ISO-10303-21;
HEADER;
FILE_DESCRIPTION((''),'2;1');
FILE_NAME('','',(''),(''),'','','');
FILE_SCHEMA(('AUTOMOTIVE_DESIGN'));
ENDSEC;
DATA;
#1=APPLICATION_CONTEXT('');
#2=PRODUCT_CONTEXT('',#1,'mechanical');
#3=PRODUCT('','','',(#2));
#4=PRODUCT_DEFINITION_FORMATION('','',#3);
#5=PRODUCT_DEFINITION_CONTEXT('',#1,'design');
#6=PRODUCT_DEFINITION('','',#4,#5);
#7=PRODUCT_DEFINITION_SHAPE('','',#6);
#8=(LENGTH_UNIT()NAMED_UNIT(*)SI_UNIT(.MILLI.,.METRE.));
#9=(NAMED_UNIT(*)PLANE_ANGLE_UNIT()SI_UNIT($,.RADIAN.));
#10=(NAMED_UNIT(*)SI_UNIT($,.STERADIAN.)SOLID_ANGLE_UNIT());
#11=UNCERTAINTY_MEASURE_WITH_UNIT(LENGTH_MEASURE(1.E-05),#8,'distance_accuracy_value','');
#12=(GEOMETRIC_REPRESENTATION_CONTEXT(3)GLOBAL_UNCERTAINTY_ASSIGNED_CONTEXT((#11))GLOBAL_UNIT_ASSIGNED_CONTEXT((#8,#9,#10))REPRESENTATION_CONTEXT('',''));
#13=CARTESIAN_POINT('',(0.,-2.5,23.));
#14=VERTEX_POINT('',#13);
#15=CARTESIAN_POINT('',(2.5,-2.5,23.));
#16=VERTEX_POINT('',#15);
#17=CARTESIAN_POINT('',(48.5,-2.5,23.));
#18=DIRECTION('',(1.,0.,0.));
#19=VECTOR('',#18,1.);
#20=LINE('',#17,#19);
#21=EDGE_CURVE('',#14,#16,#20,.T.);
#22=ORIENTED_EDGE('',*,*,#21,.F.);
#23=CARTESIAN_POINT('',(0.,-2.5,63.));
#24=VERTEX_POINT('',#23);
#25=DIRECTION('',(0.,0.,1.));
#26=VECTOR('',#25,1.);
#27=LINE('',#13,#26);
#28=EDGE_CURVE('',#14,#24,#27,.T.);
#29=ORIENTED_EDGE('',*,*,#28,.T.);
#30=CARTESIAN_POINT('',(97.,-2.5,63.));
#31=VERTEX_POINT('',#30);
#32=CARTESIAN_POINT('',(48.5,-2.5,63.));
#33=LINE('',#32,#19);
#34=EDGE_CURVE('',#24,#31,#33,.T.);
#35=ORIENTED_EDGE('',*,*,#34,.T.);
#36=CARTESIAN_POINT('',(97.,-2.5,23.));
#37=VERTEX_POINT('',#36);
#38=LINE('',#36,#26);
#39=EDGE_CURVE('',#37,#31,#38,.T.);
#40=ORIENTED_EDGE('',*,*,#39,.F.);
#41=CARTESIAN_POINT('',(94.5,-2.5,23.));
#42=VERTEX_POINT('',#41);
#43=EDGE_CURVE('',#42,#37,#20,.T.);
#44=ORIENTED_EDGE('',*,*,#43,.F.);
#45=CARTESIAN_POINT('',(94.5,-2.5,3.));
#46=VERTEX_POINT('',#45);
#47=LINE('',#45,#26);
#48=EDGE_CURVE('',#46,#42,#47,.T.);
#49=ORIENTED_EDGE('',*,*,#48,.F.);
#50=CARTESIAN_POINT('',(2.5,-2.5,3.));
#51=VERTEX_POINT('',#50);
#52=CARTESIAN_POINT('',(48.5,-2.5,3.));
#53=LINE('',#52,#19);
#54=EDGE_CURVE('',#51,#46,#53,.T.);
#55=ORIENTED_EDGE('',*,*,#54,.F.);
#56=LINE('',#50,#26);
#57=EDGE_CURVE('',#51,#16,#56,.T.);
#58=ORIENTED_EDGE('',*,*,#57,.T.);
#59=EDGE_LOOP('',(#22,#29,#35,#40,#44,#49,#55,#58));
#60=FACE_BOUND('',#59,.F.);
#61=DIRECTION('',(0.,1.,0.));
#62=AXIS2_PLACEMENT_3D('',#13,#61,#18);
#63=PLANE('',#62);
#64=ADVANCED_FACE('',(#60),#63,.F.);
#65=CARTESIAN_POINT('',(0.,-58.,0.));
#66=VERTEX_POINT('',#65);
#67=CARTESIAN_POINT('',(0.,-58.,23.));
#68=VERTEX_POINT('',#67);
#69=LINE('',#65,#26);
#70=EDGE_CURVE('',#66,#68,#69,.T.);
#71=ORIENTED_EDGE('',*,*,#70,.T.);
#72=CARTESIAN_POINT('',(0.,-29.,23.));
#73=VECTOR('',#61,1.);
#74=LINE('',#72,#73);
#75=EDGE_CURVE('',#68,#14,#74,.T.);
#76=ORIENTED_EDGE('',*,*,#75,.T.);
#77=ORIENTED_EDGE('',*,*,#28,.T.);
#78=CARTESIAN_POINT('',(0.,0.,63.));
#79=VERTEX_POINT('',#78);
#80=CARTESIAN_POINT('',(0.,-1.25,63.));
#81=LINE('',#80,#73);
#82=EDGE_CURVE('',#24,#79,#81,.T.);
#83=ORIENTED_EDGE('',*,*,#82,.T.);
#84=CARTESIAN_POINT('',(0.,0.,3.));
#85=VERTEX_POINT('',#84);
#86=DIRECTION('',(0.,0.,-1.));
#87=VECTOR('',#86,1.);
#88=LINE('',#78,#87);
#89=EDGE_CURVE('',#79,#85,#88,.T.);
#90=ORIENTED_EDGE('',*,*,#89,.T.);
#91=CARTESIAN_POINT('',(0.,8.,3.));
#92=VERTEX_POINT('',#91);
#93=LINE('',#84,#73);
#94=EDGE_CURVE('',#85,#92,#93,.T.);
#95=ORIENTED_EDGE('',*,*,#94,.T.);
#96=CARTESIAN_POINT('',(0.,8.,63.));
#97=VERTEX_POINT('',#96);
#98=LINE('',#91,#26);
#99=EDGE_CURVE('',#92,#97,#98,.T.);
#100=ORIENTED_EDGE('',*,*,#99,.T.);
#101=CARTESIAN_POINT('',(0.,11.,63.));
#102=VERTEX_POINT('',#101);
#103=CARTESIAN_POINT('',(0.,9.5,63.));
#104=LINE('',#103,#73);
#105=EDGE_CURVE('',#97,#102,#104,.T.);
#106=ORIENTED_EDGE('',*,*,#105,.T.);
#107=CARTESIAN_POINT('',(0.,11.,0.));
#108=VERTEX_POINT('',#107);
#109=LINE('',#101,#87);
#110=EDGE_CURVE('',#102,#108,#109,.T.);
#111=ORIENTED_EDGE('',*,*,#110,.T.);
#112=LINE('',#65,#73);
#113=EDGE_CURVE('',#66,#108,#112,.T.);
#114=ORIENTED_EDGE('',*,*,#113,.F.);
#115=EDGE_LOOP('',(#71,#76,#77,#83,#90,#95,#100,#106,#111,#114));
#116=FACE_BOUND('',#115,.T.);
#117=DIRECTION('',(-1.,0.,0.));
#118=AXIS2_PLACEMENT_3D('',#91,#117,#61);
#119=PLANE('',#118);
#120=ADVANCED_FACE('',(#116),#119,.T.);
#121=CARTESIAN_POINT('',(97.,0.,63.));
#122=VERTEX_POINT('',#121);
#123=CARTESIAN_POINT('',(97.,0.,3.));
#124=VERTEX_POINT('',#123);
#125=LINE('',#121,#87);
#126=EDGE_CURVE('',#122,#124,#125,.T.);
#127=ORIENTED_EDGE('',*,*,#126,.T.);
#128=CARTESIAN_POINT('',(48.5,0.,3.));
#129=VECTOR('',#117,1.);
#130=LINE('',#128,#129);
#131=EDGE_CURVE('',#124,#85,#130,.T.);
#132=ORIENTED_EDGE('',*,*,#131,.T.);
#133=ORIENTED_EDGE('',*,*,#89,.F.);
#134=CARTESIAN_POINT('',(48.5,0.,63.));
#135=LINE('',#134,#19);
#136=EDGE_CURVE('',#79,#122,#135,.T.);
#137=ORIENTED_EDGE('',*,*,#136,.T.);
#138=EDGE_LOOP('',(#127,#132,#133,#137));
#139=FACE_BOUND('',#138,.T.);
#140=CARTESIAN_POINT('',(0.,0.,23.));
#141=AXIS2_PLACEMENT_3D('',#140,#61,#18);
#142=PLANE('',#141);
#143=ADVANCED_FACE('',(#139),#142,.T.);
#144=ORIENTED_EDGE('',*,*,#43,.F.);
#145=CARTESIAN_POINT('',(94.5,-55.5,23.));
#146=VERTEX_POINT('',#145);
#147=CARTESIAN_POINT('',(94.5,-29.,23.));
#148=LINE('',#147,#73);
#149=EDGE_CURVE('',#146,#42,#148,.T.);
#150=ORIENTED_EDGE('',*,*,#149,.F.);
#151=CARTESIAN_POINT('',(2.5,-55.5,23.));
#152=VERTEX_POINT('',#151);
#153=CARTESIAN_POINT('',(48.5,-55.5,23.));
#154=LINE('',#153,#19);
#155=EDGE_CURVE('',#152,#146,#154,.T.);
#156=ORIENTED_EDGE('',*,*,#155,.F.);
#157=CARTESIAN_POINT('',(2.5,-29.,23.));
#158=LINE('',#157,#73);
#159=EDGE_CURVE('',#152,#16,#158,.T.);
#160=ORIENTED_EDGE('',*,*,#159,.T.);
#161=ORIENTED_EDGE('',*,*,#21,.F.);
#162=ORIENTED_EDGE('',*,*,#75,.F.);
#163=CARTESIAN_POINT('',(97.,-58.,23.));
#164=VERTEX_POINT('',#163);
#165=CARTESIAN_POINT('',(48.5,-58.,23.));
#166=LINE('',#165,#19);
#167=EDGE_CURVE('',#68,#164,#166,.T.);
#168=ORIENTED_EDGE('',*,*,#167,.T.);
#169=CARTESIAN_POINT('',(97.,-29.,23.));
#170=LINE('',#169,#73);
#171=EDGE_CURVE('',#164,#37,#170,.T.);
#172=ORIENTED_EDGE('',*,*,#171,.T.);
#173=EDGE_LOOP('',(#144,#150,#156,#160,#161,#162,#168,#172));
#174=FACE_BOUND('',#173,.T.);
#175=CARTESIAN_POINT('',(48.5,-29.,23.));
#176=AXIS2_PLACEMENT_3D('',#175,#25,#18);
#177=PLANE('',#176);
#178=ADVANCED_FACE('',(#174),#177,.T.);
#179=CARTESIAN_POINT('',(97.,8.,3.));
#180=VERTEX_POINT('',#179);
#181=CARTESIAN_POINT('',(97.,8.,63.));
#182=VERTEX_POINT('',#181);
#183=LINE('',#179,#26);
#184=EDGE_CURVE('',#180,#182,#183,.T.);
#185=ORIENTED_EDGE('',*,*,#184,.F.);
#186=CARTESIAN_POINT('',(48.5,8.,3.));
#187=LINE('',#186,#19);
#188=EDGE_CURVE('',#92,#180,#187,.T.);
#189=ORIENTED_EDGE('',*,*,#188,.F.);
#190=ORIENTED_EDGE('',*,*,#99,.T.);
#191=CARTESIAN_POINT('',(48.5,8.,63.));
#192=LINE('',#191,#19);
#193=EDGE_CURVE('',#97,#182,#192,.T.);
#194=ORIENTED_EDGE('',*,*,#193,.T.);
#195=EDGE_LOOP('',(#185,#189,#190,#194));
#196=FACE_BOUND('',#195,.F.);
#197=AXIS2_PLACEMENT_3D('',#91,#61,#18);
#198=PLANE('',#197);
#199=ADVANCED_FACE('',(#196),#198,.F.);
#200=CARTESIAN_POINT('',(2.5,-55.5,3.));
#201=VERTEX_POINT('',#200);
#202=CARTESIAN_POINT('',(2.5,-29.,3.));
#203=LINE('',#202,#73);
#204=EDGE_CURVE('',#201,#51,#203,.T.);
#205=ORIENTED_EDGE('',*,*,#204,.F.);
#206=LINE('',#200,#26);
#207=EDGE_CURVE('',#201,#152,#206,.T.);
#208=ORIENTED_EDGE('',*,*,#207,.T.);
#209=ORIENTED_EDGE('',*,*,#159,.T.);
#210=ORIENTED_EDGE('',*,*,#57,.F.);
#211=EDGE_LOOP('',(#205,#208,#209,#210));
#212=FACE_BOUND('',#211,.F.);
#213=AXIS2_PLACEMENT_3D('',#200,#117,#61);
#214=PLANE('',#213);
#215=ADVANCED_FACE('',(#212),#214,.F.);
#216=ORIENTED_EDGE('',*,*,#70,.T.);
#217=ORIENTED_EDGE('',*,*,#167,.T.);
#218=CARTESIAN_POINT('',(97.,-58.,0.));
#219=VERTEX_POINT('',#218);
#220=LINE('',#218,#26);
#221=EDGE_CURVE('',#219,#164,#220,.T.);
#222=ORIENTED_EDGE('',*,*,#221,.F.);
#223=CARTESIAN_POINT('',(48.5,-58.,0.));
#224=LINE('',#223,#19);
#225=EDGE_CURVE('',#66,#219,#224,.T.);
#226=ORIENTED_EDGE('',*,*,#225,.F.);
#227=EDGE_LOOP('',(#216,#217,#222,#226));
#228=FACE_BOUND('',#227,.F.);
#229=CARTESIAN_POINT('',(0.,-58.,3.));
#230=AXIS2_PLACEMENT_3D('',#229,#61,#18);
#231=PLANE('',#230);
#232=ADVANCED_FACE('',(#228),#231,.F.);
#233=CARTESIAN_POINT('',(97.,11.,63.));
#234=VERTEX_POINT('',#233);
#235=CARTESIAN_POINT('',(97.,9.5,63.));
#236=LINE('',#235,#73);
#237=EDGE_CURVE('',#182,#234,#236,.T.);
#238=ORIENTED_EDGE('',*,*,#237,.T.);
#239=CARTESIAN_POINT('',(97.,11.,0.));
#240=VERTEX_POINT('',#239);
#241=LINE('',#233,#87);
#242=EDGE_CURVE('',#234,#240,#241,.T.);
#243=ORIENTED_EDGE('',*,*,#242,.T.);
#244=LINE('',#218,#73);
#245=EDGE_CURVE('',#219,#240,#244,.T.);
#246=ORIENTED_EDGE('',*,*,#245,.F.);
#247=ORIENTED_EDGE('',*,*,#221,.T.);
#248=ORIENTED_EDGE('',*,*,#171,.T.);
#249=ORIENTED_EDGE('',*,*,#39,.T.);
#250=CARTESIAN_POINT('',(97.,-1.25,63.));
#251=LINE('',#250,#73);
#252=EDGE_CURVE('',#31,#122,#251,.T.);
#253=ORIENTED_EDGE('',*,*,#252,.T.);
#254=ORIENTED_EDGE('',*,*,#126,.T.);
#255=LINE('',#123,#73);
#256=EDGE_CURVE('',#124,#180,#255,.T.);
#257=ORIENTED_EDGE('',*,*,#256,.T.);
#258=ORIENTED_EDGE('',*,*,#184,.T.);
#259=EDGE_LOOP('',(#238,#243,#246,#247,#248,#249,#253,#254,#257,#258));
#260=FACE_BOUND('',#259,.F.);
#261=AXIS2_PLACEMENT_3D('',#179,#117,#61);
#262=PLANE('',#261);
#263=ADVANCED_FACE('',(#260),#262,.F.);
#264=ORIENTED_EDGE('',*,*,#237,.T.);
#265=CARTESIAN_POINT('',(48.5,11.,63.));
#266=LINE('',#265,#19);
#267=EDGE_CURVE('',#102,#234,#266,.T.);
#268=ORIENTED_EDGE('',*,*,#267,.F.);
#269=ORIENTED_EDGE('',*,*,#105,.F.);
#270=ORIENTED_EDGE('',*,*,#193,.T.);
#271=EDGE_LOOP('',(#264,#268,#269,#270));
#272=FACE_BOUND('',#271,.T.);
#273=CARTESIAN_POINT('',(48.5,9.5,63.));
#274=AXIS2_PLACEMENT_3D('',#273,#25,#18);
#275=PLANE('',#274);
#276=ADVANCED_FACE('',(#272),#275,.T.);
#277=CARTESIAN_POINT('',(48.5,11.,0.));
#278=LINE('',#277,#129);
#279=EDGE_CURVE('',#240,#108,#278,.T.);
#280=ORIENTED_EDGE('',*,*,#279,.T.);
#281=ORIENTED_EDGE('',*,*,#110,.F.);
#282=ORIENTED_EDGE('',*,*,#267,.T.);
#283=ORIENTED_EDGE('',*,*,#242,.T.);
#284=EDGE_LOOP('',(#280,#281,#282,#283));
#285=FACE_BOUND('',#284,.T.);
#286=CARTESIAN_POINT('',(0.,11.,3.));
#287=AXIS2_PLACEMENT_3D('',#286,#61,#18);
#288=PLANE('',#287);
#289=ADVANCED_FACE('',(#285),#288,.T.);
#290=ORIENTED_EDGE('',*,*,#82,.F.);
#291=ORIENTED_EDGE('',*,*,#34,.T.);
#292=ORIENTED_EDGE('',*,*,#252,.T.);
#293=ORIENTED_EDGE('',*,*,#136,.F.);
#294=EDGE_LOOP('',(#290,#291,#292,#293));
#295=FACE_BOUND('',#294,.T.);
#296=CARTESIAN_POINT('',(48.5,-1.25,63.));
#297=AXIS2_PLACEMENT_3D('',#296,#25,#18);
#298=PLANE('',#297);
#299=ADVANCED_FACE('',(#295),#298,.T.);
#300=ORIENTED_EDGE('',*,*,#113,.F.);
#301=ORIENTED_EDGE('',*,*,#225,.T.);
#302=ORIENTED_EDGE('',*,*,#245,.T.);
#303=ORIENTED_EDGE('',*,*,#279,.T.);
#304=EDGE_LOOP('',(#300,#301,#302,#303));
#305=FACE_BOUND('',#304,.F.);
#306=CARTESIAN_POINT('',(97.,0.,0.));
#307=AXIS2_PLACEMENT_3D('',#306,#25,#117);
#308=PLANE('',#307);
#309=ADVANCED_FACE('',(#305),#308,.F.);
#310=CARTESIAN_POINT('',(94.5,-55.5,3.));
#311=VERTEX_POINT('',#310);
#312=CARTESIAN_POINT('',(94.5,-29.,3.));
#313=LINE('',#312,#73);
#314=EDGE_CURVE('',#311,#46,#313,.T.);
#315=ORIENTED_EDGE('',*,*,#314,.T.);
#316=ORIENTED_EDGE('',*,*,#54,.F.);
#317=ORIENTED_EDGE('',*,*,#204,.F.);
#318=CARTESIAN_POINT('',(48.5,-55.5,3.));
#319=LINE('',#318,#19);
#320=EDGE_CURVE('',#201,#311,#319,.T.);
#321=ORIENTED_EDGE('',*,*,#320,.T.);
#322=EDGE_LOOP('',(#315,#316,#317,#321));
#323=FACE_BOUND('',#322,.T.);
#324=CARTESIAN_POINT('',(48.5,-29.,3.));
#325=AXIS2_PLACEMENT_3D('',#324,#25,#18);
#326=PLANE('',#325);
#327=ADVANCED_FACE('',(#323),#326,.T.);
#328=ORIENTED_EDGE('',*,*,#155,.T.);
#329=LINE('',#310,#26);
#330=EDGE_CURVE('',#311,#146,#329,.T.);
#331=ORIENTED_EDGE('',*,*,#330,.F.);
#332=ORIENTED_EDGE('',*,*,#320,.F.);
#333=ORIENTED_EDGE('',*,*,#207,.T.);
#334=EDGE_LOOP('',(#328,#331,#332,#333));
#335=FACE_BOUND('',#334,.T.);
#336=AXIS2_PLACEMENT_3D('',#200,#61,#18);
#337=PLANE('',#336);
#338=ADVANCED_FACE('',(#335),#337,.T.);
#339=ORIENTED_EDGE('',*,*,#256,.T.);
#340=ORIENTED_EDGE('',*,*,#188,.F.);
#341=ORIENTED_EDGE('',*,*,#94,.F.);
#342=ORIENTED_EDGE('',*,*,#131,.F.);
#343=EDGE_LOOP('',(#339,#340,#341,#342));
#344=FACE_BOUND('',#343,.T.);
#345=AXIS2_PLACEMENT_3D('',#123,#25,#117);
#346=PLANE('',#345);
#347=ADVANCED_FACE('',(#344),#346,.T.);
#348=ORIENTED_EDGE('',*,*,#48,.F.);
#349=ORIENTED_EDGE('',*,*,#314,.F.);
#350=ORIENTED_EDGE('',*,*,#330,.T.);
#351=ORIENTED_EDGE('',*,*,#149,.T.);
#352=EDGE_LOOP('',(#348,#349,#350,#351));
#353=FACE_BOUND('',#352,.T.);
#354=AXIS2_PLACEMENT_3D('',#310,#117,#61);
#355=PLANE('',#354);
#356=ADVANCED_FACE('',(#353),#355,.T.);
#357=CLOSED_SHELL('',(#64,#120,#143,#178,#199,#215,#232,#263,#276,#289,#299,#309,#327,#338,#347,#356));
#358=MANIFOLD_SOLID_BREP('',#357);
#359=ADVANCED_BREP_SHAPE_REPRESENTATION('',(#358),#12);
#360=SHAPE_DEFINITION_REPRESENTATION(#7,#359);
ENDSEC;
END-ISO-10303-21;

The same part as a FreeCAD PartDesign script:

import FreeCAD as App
import Part
import Sketcher

V = App.Vector

doc = App.newDocument("Part")
body = doc.addObject("PartDesign::Body", "Body")

sketch1 = body.newObject("Sketcher::SketchObject", "Sketch")
sketch1.AttachmentSupport = (doc.getObject("XY_Plane"), [""])
sketch1.MapMode = "FlatFace"
sketch1.addGeometry(Part.LineSegment(V(0, 0, 0), V(0, -58, 0)), False)
sketch1.addGeometry(Part.LineSegment(V(0, -58, 0), V(97, -58, 0)), False)
sketch1.addGeometry(Part.LineSegment(V(97, -58, 0), V(97, 0, 0)), False)
sketch1.addGeometry(Part.LineSegment(V(97, 0, 0), V(0, 0, 0)), False)
sketch1.addConstraint(Sketcher.Constraint("Coincident", 0, 2, 1, 1))
sketch1.addConstraint(Sketcher.Constraint("Coincident", 1, 2, 2, 1))
sketch1.addConstraint(Sketcher.Constraint("Coincident", 2, 2, 3, 1))
sketch1.addConstraint(Sketcher.Constraint("Coincident", 3, 2, 0, 1))
sketch1.addConstraint(Sketcher.Constraint("Vertical", 0))
sketch1.addConstraint(Sketcher.Constraint("Horizontal", 1))
sketch1.addConstraint(Sketcher.Constraint("Vertical", 2))
sketch1.addConstraint(Sketcher.Constraint("Horizontal", 3))
sketch1.addConstraint(Sketcher.Constraint("Coincident", 3, 2, -1, 1))
sketch1.addConstraint(Sketcher.Constraint("DistanceX", 1, 1, 1, 2, 97.0))
sketch1.addConstraint(Sketcher.Constraint("DistanceY", 0, 2, 0, 1, 58.0))
pad1 = body.newObject("PartDesign::Pad", "Pad")
pad1.Profile = sketch1
pad1.Length = 3

sketch2 = body.newObject("Sketcher::SketchObject", "Sketch001")
sketch2.AttachmentSupport = (doc.getObject("XY_Plane"), [""])
sketch2.MapMode = "FlatFace"
sketch2.AttachmentOffset = App.Placement(V(0, 0, 3), App.Rotation())
sketch2.addGeometry(Part.LineSegment(V(0, 0, 0), V(0, -58, 0)), False)
sketch2.addGeometry(Part.LineSegment(V(0, -58, 0), V(97, -58, 0)), False)
sketch2.addGeometry(Part.LineSegment(V(97, -58, 0), V(97, 0, 0)), False)
sketch2.addGeometry(Part.LineSegment(V(97, 0, 0), V(0, 0, 0)), False)
sketch2.addGeometry(Part.LineSegment(V(94, -56, 0), V(2, -56, 0)), False)
sketch2.addGeometry(Part.LineSegment(V(2, -56, 0), V(2, -2, 0)), False)
sketch2.addGeometry(Part.LineSegment(V(2, -2, 0), V(94, -2, 0)), False)
sketch2.addGeometry(Part.LineSegment(V(94, -2, 0), V(94, -56, 0)), False)
sketch2.addConstraint(Sketcher.Constraint("Coincident", 0, 2, 1, 1))
sketch2.addConstraint(Sketcher.Constraint("Coincident", 1, 2, 2, 1))
sketch2.addConstraint(Sketcher.Constraint("Coincident", 2, 2, 3, 1))
sketch2.addConstraint(Sketcher.Constraint("Coincident", 3, 2, 0, 1))
sketch2.addConstraint(Sketcher.Constraint("Coincident", 4, 2, 5, 1))
sketch2.addConstraint(Sketcher.Constraint("Coincident", 5, 2, 6, 1))
sketch2.addConstraint(Sketcher.Constraint("Coincident", 6, 2, 7, 1))
sketch2.addConstraint(Sketcher.Constraint("Coincident", 7, 2, 4, 1))
sketch2.addConstraint(Sketcher.Constraint("Vertical", 0))
sketch2.addConstraint(Sketcher.Constraint("Horizontal", 1))
sketch2.addConstraint(Sketcher.Constraint("Vertical", 2))
sketch2.addConstraint(Sketcher.Constraint("Horizontal", 3))
sketch2.addConstraint(Sketcher.Constraint("Horizontal", 4))
sketch2.addConstraint(Sketcher.Constraint("Vertical", 5))
sketch2.addConstraint(Sketcher.Constraint("Horizontal", 6))
sketch2.addConstraint(Sketcher.Constraint("Vertical", 7))
sketch2.addConstraint(Sketcher.Constraint("Coincident", 3, 2, -1, 1))
sketch2.addConstraint(Sketcher.Constraint("DistanceX", 1, 1, 1, 2, 97.0))
sketch2.addConstraint(Sketcher.Constraint("DistanceX", 4, 2, 4, 1, 92.0))
sketch2.addConstraint(Sketcher.Constraint("DistanceY", 0, 2, 0, 1, 58.0))
sketch2.addConstraint(Sketcher.Constraint("DistanceY", 5, 1, 5, 2, 53.0))
sketch2.addConstraint(Sketcher.Constraint("DistanceX", -1, 1, 4, 2, 2.5))
sketch2.addConstraint(Sketcher.Constraint("DistanceY", 4, 2, -1, 1, 55.5))
pad2 = body.newObject("PartDesign::Pad", "Pad001")
pad2.Profile = sketch2
pad2.Length = 20

sketch3 = body.newObject("Sketcher::SketchObject", "Sketch002")
sketch3.AttachmentSupport = (doc.getObject("XZ_Plane"), [""])
sketch3.MapMode = "FlatFace"
sketch3.addGeometry(Part.LineSegment(V(97, 3, 0), V(97, 0, 0)), False)
sketch3.addGeometry(Part.LineSegment(V(97, 0, 0), V(0, 0, 0)), False)
sketch3.addGeometry(Part.LineSegment(V(0, 0, 0), V(0, 3, 0)), False)
sketch3.addGeometry(Part.LineSegment(V(0, 3, 0), V(97, 3, 0)), False)
sketch3.addConstraint(Sketcher.Constraint("Coincident", 0, 2, 1, 1))
sketch3.addConstraint(Sketcher.Constraint("Coincident", 1, 2, 2, 1))
sketch3.addConstraint(Sketcher.Constraint("Coincident", 2, 2, 3, 1))
sketch3.addConstraint(Sketcher.Constraint("Coincident", 3, 2, 0, 1))
sketch3.addConstraint(Sketcher.Constraint("Vertical", 0))
sketch3.addConstraint(Sketcher.Constraint("Horizontal", 1))
sketch3.addConstraint(Sketcher.Constraint("Vertical", 2))
sketch3.addConstraint(Sketcher.Constraint("Horizontal", 3))
sketch3.addConstraint(Sketcher.Constraint("Coincident", 1, 2, -1, 1))
sketch3.addConstraint(Sketcher.Constraint("DistanceX", 1, 2, 1, 1, 97.0))
sketch3.addConstraint(Sketcher.Constraint("DistanceY", 0, 2, 0, 1, 3.0))
pad3 = body.newObject("PartDesign::Pad", "Pad002")
pad3.Profile = sketch3
pad3.Length = 11
pad3.Reversed = True

sketch4 = body.newObject("Sketcher::SketchObject", "Sketch003")
sketch4.AttachmentSupport = (doc.getObject("XY_Plane"), [""])
sketch4.MapMode = "FlatFace"
sketch4.AttachmentOffset = App.Placement(V(0, 0, 23), App.Rotation())
sketch4.addGeometry(Part.LineSegment(V(0, 0, 0), V(0, -2.5, 0)), False)
sketch4.addGeometry(Part.LineSegment(V(0, -2.5, 0), V(97, -2.5, 0)), False)
sketch4.addGeometry(Part.LineSegment(V(97, -2.5, 0), V(97, 0, 0)), False)
sketch4.addGeometry(Part.LineSegment(V(97, 0, 0), V(0, 0, 0)), False)
sketch4.addConstraint(Sketcher.Constraint("Coincident", 0, 2, 1, 1))
sketch4.addConstraint(Sketcher.Constraint("Coincident", 1, 2, 2, 1))
sketch4.addConstraint(Sketcher.Constraint("Coincident", 2, 2, 3, 1))
sketch4.addConstraint(Sketcher.Constraint("Coincident", 3, 2, 0, 1))
sketch4.addConstraint(Sketcher.Constraint("Vertical", 0))
sketch4.addConstraint(Sketcher.Constraint("Horizontal", 1))
sketch4.addConstraint(Sketcher.Constraint("Vertical", 2))
sketch4.addConstraint(Sketcher.Constraint("Horizontal", 3))
sketch4.addConstraint(Sketcher.Constraint("Coincident", 3, 2, -1, 1))
sketch4.addConstraint(Sketcher.Constraint("DistanceX", 1, 1, 1, 2, 97.0))
sketch4.addConstraint(Sketcher.Constraint("DistanceY", 0, 2, 0, 1, 2.5))
pad4 = body.newObject("PartDesign::Pad", "Pad003")
pad4.Profile = sketch4
pad4.Length = 40

sketch5 = body.newObject("Sketcher::SketchObject", "Sketch004")
sketch5.AttachmentSupport = (doc.getObject("XY_Plane"), [""])
sketch5.MapMode = "FlatFace"
sketch5.AttachmentOffset = App.Placement(V(0, 0, 3), App.Rotation())
sketch5.addGeometry(Part.LineSegment(V(0, 11, 0), V(0, 8, 0)), False)
sketch5.addGeometry(Part.LineSegment(V(0, 8, 0), V(97, 8, 0)), False)
sketch5.addGeometry(Part.LineSegment(V(97, 8, 0), V(97, 11, 0)), False)
sketch5.addGeometry(Part.LineSegment(V(97, 11, 0), V(0, 11, 0)), False)
sketch5.addConstraint(Sketcher.Constraint("Coincident", 0, 2, 1, 1))
sketch5.addConstraint(Sketcher.Constraint("Coincident", 1, 2, 2, 1))
sketch5.addConstraint(Sketcher.Constraint("Coincident", 2, 2, 3, 1))
sketch5.addConstraint(Sketcher.Constraint("Coincident", 3, 2, 0, 1))
sketch5.addConstraint(Sketcher.Constraint("Vertical", 0))
sketch5.addConstraint(Sketcher.Constraint("Horizontal", 1))
sketch5.addConstraint(Sketcher.Constraint("Vertical", 2))
sketch5.addConstraint(Sketcher.Constraint("Horizontal", 3))
sketch5.addConstraint(Sketcher.Constraint("PointOnObject", 0, 2, -2))
sketch5.addConstraint(Sketcher.Constraint("DistanceX", 1, 1, 1, 2, 97.0))
sketch5.addConstraint(Sketcher.Constraint("DistanceY", 0, 2, 0, 1, 3.0))
sketch5.addConstraint(Sketcher.Constraint("DistanceY", -1, 1, 0, 2, 8.0))
pad5 = body.newObject("PartDesign::Pad", "Pad004")
pad5.Profile = sketch5
pad5.Length = 60

doc.recompute()
